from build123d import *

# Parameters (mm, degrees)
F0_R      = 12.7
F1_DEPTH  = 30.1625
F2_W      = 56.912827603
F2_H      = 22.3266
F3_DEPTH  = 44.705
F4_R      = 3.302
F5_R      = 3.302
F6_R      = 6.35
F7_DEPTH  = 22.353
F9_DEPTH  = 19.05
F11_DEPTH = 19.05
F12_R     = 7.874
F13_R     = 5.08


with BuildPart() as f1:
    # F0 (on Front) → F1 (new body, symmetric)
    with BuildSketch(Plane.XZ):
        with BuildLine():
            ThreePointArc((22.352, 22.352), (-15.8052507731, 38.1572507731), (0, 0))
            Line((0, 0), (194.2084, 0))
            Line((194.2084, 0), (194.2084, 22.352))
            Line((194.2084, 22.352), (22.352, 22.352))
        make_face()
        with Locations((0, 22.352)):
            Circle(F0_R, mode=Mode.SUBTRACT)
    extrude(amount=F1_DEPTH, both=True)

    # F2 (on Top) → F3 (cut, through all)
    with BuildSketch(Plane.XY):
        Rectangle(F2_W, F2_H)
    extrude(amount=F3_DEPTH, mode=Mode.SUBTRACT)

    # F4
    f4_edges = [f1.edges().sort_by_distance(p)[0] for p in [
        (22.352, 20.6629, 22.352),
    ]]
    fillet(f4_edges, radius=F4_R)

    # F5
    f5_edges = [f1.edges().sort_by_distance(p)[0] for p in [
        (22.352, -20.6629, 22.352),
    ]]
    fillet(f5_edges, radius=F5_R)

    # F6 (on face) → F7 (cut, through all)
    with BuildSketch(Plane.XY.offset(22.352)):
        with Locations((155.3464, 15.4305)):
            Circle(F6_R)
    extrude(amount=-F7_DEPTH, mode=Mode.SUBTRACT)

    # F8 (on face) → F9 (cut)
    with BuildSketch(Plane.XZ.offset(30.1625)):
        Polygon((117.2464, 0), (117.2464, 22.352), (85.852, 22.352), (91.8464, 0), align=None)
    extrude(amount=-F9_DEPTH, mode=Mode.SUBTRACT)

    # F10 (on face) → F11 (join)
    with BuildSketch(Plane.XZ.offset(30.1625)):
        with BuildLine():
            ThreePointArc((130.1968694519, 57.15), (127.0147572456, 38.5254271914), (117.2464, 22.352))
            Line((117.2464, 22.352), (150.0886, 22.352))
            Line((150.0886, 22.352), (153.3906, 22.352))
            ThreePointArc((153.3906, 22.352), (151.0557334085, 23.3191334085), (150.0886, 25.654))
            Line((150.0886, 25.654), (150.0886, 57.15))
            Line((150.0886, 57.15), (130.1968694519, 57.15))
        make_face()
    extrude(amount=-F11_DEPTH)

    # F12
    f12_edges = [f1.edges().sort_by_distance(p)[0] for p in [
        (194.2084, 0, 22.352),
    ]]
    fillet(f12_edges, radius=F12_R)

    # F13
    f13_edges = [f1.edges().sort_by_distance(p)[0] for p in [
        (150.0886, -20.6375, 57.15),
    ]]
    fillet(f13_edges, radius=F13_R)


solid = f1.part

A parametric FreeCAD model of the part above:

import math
import FreeCAD as App
import Part
import Sketcher
Q = App.Units.Quantity


def edges_at(feature, points):
    """Names of the edges that pass closest to the given points."""
    edges = feature.Shape.Edges
    near = lambda p: min(range(len(edges)), key=lambda i: edges[i].distToShape(Part.Vertex(*p))[0])
    return sorted({f"Edge{near(p) + 1}" for p in points})

doc = App.newDocument("Part")
body = doc.addObject("PartDesign::Body", "Body")

# Sketch on XZ plane
sketch1 = body.newObject("Sketcher::SketchObject", "Sketch")
sketch1.AttachmentSupport = (doc.getObject("XZ_Plane"), [""])
sketch1.MapMode = "FlatFace"
sketch1.addGeometry([
    Part.ArcOfCircle(Part.Circle(App.Vector(0, 22, 0), App.Vector(0, 0, 1), 22), math.radians(0), math.radians(270)),  # 0
    Part.LineSegment(App.Vector(0, 0, 0), App.Vector(194, 0, 0)),  # 1
    Part.LineSegment(App.Vector(194, 0, 0), App.Vector(194, 22, 0)),  # 2
    Part.LineSegment(App.Vector(194, 22, 0), App.Vector(22, 22, 0)),  # 3
    Part.Circle(App.Vector(0, 22, 0), App.Vector(0, 0, 1), 13),  # 4
], False)
sketch1.addConstraint([
    Sketcher.Constraint("Tangent", 0, 2, 1, 1),
    Sketcher.Constraint("Coincident", 1, 2, 2, 1),
    Sketcher.Constraint("Coincident", 2, 2, 3, 1),
    Sketcher.Constraint("Coincident", 3, 2, 0, 1),
    Sketcher.Constraint("Horizontal", 1),
    Sketcher.Constraint("Vertical", 2),
    Sketcher.Constraint("Horizontal", 3),
    Sketcher.Constraint("Coincident", 0, 2, -1, 1),
    Sketcher.Constraint("Coincident", 4, 3, 0, 3),
    Sketcher.Constraint("Horizontal", 4, 3, 2, 2),
    Sketcher.Constraint("Diameter", 4, Q("1 in")),
    Sketcher.Constraint("Radius", 0, Q("0.88 in")),
    Sketcher.Constraint("DistanceX", 1, 1, 1, 2, Q("7.646 in")),
])
pad1 = body.newObject("PartDesign::Pad", "Pad")
pad1.Profile = sketch1
pad1.Length = Q("2.375 in")
pad1.Midplane = True

# Sketch on XY plane
sketch2 = body.newObject("Sketcher::SketchObject", "Sketch001")
sketch2.AttachmentSupport = (doc.getObject("XY_Plane"), [""])
sketch2.MapMode = "FlatFace"
sketch2.addGeometry([
    Part.LineSegment(App.Vector(-28, 11, 0), App.Vector(-28, -11, 0)),
    Part.LineSegment(App.Vector(-28, -11, 0), App.Vector(28, -11, 0)),
    Part.LineSegment(App.Vector(28, -11, 0), App.Vector(28, 11, 0)),
    Part.LineSegment(App.Vector(28, 11, 0), App.Vector(-28, 11, 0)),
], False)
sketch2.addConstraint([
    Sketcher.Constraint("Coincident", 0, 2, 1, 1),
    Sketcher.Constraint("Coincident", 1, 2, 2, 1),
    Sketcher.Constraint("Coincident", 2, 2, 3, 1),
    Sketcher.Constraint("Coincident", 3, 2, 0, 1),
    Sketcher.Constraint("Vertical", 0),
    Sketcher.Constraint("Horizontal", 1),
    Sketcher.Constraint("Vertical", 2),
    Sketcher.Constraint("Horizontal", 3),
    Sketcher.Constraint("Symmetric", 0, 2, 2, 2, -1, 1),
    Sketcher.Constraint("DistanceY", 0, 2, 0, 1, Q("0.879 in")),
    Sketcher.Constraint("DistanceX", 1, 1, 1, 2, Q("56.912828 mm")),
])
pocket1 = body.newObject("PartDesign::Pocket", "Pocket")
pocket1.Profile = sketch2
pocket1.Type = "ThroughAll"
pocket1.Reversed = True
doc.recompute()

fillet = body.newObject("PartDesign::Fillet", "Fillet")
fillet.Base = (pocket1, edges_at(pocket1, [(22.352, 20.663, 22.352)]))
fillet.Radius = Q("0.13 in")
doc.recompute()

fillet2 = body.newObject("PartDesign::Fillet", "Fillet001")
fillet2.Base = (fillet, edges_at(fillet, [(22.352, -20.663, 22.352)]))
fillet2.Radius = Q("0.13 in")

# Sketch on XY plane
sketch3 = body.newObject("Sketcher::SketchObject", "Sketch002")
sketch3.AttachmentSupport = (doc.getObject("XY_Plane"), [""])
sketch3.MapMode = "FlatFace"
sketch3.AttachmentOffset = App.Placement(App.Vector(0, 0, 0.88 * 25.4), App.Rotation())
sketch3.addGeometry(Part.Circle(App.Vector(155, 15, 0), App.Vector(0, 0, 1), 6), False)
sketch3.addConstraint([
    Sketcher.Constraint("Diameter", 0, Q("0.5 in")),
    Sketcher.Constraint("DistanceX", -1, 1, 0, 3, Q("6.116 in")),
    Sketcher.Constraint("DistanceY", -1, 1, 0, 3, Q("0.6075 in")),
])
pocket2 = body.newObject("PartDesign::Pocket", "Pocket001")
pocket2.Profile = sketch3
pocket2.Type = "ThroughAll"

# Sketch on XZ plane
sketch4 = body.newObject("Sketcher::SketchObject", "Sketch003")
sketch4.AttachmentSupport = (doc.getObject("XZ_Plane"), [""])
sketch4.MapMode = "FlatFace"
sketch4.AttachmentOffset = App.Placement(App.Vector(0, 0, 1.1875 * 25.4), App.Rotation())
sketch4.addGeometry([
    Part.LineSegment(App.Vector(117, 0, 0), App.Vector(117, 22, 0)),
    Part.LineSegment(App.Vector(117, 22, 0), App.Vector(86, 22, 0)),
    Part.LineSegment(App.Vector(86, 22, 0), App.Vector(92, 0, 0)),
    Part.LineSegment(App.Vector(92, 0, 0), App.Vector(117, 0, 0)),
], False)
sketch4.addConstraint([
    Sketcher.Constraint("Coincident", 0, 2, 1, 1),
    Sketcher.Constraint("Coincident", 1, 2, 2, 1),
    Sketcher.Constraint("Coincident", 2, 2, 3, 1),
    Sketcher.Constraint("Coincident", 3, 2, 0, 1),
    Sketcher.Constraint("Vertical", 0),
    Sketcher.Constraint("Horizontal", 1),
    Sketcher.Constraint("Horizontal", 3),
    Sketcher.Constraint("PointOnObject", 2, 2, -1),
    Sketcher.Constraint("DistanceX", 3, 1, 3, 2, Q("1 in")),
    Sketcher.Constraint("DistanceY", 0, 1, 0, 2, Q("0.88 in")),
    Sketcher.Constraint("DistanceX", 1, 2, 1, 1, Q("1.236 in")),
    Sketcher.Constraint("DistanceX", -1, 1, 1, 2, Q("3.38 in")),
])
pocket3 = body.newObject("PartDesign::Pocket", "Pocket002")
pocket3.Profile = sketch4
pocket3.Length = Q("0.75 in")

# Sketch on XZ plane
sketch5 = body.newObject("Sketcher::SketchObject", "Sketch004")
sketch5.AttachmentSupport = (doc.getObject("XZ_Plane"), [""])
sketch5.MapMode = "FlatFace"
sketch5.AttachmentOffset = App.Placement(App.Vector(0, 0, 1.1875 * 25.4), App.Rotation())
sketch5.addGeometry([
    Part.ArcOfCircle(Part.Circle(App.Vector(79.4, 56.2, 0), App.Vector(0, 0, 1), 50.8), math.radians(-42), math.radians(1)),  # 0
    Part.LineSegment(App.Vector(117.2, 22.4, 0), App.Vector(153.4, 22.4, 0)),  # 1
    Part.ArcOfCircle(Part.Circle(App.Vector(153.4, 25.7, 0), App.Vector(0, 0, 1), 3.3), math.radians(180), math.radians(270)),  # 2
    Part.LineSegment(App.Vector(150.1, 25.7, 0), App.Vector(150.1, 57.1, 0)),  # 3
    Part.LineSegment(App.Vector(150.1, 57.1, 0), App.Vector(130.2, 57.1, 0)),  # 4
], False)
sketch5.addConstraint([
    Sketcher.Constraint("Coincident", 0, 1, 1, 1),
    Sketcher.Constraint("Tangent", 1, 2, 2, 2),
    Sketcher.Constraint("Tangent", 2, 1, 3, 1),
    Sketcher.Constraint("Coincident", 3, 2, 4, 1),
    Sketcher.Constraint("Coincident", 4, 2, 0, 2),
    Sketcher.Constraint("Horizontal", 1),
    Sketcher.Constraint("Vertical", 3),
    Sketcher.Constraint("Horizontal", 4),
    Sketcher.Constraint("Radius", 0, Q("2 in")),
    Sketcher.Constraint("Radius", 2, Q("0.13 in")),
    Sketcher.Constraint("DistanceY", 3, 1, 3, 2, Q("1.24 in")),
    Sketcher.Constraint("DistanceX", 1, 1, 1, 2, Q("1.423 in")),
    Sketcher.Constraint("DistanceY", -1, 1, 2, 3, Q("1.01 in")),
    Sketcher.Constraint("DistanceX", -1, 1, 2, 3, Q("6.039 in")),
    Sketcher.Constraint("DistanceX", 4, 2, 4, 1, Q("19.891731 mm")),
])
pad2 = body.newObject("PartDesign::Pad", "Pad001")
pad2.Profile = sketch5
pad2.Length = Q("0.75 in")
pad2.Reversed = True
doc.recompute()

fillet3 = body.newObject("PartDesign::Fillet", "Fillet002")
fillet3.Base = (pad2, edges_at(pad2, [(194.208, 0, 22.352)]))
fillet3.Radius = Q("0.31 in")
doc.recompute()

fillet4 = body.newObject("PartDesign::Fillet", "Fillet003")
fillet4.Base = (fillet3, edges_at(fillet3, [(150.089, -20.637, 57.15)]))
fillet4.Radius = Q("0.2 in")

doc.recompute()
